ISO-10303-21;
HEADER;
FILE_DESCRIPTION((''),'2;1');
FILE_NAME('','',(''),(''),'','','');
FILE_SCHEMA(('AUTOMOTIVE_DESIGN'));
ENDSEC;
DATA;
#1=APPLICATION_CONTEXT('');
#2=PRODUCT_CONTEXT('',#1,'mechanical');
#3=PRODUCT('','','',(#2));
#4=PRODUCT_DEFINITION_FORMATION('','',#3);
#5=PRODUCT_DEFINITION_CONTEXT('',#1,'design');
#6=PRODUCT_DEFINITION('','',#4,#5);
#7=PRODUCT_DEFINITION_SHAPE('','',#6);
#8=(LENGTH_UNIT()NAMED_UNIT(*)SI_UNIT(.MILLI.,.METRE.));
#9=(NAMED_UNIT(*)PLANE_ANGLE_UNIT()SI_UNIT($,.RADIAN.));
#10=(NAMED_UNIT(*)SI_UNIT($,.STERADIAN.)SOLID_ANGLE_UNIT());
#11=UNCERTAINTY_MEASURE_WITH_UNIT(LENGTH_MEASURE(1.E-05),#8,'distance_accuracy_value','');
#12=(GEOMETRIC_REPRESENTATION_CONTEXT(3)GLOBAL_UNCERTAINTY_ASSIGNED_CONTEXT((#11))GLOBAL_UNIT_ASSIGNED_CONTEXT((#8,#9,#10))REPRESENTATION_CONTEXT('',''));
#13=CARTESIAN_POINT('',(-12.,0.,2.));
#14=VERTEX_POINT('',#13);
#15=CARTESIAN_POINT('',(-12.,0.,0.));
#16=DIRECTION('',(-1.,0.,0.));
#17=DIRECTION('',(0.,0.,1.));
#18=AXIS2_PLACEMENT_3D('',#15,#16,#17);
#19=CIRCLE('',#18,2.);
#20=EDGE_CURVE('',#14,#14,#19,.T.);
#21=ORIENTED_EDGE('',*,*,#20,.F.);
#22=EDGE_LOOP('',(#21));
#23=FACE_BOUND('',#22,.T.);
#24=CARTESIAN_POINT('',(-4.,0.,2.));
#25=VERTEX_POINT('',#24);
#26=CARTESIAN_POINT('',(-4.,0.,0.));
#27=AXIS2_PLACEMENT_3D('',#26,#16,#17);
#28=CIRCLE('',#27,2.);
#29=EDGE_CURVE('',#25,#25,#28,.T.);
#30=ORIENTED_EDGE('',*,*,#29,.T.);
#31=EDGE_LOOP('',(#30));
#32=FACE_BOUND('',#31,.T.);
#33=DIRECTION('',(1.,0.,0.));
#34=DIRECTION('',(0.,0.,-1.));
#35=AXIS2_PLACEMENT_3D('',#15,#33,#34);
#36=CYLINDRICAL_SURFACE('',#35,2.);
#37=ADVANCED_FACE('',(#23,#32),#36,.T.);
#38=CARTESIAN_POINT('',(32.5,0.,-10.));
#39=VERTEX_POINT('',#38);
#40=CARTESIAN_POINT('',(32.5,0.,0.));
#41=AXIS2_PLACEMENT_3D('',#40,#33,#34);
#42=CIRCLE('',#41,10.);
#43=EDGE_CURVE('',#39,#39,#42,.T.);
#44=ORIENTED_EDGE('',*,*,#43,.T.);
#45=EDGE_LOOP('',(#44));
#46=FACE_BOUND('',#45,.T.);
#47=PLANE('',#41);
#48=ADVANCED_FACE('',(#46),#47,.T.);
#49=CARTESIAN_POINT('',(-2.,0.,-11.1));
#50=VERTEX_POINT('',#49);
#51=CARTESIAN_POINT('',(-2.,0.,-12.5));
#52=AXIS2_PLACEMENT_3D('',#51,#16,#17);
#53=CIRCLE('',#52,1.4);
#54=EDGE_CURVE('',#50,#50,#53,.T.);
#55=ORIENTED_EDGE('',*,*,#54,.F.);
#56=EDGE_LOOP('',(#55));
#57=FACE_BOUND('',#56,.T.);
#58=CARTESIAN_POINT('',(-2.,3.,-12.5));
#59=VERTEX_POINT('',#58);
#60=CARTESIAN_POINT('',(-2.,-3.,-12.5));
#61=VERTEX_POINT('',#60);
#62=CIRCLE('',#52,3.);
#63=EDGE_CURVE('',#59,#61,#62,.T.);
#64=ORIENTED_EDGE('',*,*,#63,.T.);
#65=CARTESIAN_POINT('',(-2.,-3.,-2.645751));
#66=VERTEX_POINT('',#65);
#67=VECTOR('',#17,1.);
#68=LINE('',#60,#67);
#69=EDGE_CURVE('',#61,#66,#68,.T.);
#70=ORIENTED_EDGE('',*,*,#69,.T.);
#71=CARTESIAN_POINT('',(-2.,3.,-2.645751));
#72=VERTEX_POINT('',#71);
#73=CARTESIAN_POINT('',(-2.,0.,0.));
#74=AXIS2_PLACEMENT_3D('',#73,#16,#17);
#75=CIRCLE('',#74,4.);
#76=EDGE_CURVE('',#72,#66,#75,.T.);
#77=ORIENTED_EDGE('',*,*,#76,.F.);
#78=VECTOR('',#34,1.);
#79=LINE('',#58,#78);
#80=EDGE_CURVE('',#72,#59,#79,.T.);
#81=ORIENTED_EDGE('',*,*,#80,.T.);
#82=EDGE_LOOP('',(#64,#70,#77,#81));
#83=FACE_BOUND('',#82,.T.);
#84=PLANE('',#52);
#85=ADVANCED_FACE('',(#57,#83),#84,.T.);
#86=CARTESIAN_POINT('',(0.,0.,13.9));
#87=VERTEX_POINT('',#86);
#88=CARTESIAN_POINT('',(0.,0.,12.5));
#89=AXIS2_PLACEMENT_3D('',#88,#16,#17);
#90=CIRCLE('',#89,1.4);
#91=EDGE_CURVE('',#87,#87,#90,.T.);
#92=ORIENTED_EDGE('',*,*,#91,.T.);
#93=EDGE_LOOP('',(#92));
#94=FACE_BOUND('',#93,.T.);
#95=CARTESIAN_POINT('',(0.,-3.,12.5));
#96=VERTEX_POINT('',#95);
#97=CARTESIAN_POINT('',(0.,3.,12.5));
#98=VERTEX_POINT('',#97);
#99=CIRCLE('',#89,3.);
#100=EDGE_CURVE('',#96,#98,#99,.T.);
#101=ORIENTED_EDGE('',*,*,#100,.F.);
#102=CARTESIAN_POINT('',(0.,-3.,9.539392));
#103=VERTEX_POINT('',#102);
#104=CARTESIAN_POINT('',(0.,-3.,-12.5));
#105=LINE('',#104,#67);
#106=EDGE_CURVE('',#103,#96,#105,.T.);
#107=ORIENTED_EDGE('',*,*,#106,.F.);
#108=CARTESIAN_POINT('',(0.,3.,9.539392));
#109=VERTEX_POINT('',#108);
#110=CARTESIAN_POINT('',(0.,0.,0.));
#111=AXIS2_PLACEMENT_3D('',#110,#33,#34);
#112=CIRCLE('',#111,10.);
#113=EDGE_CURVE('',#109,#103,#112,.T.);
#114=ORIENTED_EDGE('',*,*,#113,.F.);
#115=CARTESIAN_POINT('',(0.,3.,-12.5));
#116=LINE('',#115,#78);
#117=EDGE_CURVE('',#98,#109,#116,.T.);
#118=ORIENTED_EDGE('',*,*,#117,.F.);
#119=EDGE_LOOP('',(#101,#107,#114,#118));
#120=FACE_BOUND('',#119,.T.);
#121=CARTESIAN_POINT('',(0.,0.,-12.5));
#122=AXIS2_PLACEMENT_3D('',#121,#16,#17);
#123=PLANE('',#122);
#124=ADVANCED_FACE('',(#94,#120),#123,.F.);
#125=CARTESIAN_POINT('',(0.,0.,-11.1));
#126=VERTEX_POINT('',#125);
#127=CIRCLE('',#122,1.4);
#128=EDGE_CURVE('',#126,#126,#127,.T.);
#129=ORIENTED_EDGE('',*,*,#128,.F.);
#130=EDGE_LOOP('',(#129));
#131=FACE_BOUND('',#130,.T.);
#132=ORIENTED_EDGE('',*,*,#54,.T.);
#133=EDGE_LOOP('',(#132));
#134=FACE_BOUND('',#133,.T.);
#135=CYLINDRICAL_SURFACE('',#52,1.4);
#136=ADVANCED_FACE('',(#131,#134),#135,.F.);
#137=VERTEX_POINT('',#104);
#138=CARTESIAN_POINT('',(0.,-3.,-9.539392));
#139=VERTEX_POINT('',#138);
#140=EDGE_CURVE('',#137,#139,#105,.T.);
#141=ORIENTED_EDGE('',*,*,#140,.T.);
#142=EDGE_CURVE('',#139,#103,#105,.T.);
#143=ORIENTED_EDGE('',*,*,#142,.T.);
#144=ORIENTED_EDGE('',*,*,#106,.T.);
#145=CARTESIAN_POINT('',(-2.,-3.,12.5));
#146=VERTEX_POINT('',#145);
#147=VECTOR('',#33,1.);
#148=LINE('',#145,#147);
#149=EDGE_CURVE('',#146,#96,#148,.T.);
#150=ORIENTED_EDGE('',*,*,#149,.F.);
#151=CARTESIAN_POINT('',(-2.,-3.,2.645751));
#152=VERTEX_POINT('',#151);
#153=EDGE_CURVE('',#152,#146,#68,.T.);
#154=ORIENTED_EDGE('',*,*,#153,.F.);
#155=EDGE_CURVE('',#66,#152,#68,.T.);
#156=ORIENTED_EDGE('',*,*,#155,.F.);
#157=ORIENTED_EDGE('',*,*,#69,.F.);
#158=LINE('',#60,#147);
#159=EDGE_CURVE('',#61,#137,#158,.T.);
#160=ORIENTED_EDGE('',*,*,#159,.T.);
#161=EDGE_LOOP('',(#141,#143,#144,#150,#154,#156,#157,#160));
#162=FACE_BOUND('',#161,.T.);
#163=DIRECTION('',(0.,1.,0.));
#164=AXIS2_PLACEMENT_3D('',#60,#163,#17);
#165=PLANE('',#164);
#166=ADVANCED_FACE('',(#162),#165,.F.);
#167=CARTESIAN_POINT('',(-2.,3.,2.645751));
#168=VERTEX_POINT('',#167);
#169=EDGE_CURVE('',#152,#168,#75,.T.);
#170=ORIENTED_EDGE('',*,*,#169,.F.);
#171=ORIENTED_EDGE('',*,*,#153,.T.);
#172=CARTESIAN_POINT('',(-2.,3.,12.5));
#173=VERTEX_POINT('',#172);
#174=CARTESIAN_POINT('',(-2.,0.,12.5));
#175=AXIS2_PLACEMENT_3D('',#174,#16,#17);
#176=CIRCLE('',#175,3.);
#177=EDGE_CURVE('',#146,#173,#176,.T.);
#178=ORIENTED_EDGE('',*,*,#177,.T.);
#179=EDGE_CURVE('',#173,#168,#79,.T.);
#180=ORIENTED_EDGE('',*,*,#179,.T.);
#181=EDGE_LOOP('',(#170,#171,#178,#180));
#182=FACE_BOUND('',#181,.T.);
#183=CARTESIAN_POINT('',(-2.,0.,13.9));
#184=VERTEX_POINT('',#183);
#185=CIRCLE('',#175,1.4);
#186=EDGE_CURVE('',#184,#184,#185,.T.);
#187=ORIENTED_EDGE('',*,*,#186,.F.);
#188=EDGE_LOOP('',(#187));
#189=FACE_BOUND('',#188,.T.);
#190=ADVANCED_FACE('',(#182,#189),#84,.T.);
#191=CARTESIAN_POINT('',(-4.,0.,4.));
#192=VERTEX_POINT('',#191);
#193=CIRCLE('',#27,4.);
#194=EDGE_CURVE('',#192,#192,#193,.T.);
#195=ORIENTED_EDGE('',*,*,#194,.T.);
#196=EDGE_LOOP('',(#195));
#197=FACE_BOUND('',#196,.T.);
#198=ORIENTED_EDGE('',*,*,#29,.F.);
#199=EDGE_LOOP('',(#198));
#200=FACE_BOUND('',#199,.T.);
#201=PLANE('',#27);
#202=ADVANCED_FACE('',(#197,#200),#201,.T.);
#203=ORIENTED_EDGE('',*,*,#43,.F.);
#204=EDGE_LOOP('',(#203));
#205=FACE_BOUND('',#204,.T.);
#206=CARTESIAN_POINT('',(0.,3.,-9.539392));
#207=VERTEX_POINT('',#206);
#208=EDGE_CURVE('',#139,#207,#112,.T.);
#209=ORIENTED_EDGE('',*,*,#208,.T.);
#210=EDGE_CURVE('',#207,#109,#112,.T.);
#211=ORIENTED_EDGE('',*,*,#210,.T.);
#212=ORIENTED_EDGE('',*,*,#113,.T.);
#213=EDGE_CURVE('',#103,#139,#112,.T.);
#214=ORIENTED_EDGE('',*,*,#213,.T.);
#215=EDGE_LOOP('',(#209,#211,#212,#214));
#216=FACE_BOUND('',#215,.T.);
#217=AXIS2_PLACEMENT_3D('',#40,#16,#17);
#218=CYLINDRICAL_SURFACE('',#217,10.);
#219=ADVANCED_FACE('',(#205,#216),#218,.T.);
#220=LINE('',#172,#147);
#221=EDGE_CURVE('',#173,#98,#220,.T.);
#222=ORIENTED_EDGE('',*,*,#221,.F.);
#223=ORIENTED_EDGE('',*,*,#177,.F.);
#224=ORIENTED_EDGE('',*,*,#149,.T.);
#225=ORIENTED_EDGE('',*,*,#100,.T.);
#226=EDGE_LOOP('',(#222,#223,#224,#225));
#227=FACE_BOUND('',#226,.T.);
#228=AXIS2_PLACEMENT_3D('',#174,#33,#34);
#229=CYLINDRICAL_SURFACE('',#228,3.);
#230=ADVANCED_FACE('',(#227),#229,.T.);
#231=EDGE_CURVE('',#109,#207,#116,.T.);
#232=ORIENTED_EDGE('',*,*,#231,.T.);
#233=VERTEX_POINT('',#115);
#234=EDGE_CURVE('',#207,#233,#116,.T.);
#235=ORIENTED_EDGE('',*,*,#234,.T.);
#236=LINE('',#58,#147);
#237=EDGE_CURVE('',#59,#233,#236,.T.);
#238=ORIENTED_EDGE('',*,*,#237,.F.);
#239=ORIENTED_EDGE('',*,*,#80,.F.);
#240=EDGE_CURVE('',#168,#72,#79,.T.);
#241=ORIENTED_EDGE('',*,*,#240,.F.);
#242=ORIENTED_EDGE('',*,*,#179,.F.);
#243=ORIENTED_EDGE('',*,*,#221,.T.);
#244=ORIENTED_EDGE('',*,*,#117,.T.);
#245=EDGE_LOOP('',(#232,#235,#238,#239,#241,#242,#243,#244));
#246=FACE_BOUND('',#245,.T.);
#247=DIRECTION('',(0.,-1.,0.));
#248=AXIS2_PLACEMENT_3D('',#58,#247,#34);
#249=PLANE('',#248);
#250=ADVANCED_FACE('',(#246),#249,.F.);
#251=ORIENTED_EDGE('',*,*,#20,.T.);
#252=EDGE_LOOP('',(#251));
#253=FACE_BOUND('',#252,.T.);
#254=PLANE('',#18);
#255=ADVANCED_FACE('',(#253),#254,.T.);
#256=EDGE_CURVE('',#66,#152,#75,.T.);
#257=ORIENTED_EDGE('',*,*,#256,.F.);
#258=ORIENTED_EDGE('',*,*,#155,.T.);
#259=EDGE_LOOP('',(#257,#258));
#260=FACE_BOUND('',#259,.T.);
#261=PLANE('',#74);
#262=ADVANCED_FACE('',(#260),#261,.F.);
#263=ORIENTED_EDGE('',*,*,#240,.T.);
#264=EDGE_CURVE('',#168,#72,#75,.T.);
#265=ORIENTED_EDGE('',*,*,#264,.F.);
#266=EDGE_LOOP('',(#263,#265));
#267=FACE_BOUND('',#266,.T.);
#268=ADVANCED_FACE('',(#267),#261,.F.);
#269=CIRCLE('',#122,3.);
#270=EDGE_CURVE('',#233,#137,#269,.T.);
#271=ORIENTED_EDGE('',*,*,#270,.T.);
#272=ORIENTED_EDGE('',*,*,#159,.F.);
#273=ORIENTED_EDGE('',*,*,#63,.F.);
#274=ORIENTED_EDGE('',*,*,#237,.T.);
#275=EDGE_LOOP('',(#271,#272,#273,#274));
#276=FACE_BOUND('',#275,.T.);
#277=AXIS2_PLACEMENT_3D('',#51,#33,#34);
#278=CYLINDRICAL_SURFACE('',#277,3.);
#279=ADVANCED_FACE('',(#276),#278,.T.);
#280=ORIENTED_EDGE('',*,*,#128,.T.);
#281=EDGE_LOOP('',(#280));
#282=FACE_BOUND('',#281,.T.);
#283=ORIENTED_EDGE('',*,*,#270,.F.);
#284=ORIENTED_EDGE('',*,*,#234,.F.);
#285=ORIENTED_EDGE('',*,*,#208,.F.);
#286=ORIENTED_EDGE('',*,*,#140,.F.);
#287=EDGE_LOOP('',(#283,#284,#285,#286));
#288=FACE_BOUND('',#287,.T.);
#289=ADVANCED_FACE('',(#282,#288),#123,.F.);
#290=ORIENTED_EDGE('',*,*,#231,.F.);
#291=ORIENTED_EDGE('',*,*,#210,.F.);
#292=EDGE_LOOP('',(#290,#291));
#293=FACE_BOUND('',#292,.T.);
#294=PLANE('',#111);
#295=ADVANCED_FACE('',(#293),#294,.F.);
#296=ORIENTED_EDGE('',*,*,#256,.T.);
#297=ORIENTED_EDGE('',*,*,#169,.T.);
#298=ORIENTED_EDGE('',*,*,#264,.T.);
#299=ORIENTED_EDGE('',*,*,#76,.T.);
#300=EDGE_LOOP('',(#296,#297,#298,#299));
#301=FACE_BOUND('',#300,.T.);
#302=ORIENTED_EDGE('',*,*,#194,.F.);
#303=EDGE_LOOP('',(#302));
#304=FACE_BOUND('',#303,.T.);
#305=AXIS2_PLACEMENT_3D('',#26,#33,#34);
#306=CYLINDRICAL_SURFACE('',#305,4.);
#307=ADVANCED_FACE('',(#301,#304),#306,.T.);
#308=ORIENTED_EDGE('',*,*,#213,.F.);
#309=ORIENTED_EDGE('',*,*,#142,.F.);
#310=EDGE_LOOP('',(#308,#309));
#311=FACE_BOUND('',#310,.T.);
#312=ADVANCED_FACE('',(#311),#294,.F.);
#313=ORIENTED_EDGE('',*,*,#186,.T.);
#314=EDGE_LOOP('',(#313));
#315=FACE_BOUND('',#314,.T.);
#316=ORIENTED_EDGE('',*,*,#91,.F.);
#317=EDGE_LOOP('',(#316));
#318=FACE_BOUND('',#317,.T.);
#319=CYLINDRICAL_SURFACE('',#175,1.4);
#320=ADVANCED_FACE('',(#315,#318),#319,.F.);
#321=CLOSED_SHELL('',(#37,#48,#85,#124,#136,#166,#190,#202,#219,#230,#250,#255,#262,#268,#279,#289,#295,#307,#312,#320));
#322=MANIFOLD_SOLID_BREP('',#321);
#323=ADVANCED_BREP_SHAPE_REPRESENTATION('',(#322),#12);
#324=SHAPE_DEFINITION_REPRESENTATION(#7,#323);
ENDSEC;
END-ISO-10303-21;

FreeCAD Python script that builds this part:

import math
import FreeCAD as App
import Part
import Sketcher

V = App.Vector

doc = App.newDocument("Part")
body = doc.addObject("PartDesign::Body", "Body")

# Sketch on YZ plane
sketch1 = doc.addObject("Sketcher::SketchObject", "Sketch")
body.addObject(sketch1)
sketch1.AttachmentSupport = (doc.YZ_Plane, [""])
sketch1.MapMode = "FlatFace"
sketch1.addGeometry(Part.Circle(V(0, 0, 0), V(0, 0, 1), 10), False)
sketch1.addConstraint(Sketcher.Constraint("Coincident", 0, 3, -1, 1))
sketch1.addConstraint(Sketcher.Constraint("Diameter", 0, 20.0))
pad1 = doc.addObject("PartDesign::Pad", "Pad")
body.addObject(pad1)
pad1.Profile = sketch1
pad1.Length = 32.5

# Sketch on YZ plane
sketch2 = doc.addObject("Sketcher::SketchObject", "Sketch001")
body.addObject(sketch2)
sketch2.AttachmentSupport = (doc.YZ_Plane, [""])
sketch2.MapMode = "FlatFace"
sketch2.addGeometry(Part.LineSegment(V(3, 12.5, 0), V(3, -12.5, 0)), False)
sketch2.addGeometry(Part.ArcOfCircle(Part.Circle(V(0, -12.5, 0), V(0, 0, 1), 3), math.radians(180), math.radians(360)), False)
sketch2.addGeometry(Part.LineSegment(V(-3, -12.5, 0), V(-3, 12.5, 0)), False)
sketch2.addGeometry(Part.ArcOfCircle(Part.Circle(V(0, 12.5, 0), V(0, 0, 1), 3), math.radians(0), math.radians(180)), False)
sketch2.addConstraint(Sketcher.Constraint("Tangent", 0, 2, 1, 2))
sketch2.addConstraint(Sketcher.Constraint("Tangent", 1, 1, 2, 1))
sketch2.addConstraint(Sketcher.Constraint("Tangent", 2, 2, 3, 2))
sketch2.addConstraint(Sketcher.Constraint("Tangent", 3, 1, 0, 1))
sketch2.addConstraint(Sketcher.Constraint("Vertical", 0))
sketch2.addConstraint(Sketcher.Constraint("Vertical", 2))
sketch2.addConstraint(Sketcher.Constraint("Symmetric", 1, 3, 3, 3, -1, 1))
sketch2.addConstraint(Sketcher.Constraint("Radius", 1, 3.0))
sketch2.addConstraint(Sketcher.Constraint("DistanceY", 0, 2, 0, 1, 25.0))
pad2 = doc.addObject("PartDesign::Pad", "Pad001")
body.addObject(pad2)
pad2.Profile = sketch2
pad2.Length = 2
pad2.Reversed = True

# Sketch on YZ plane
sketch3 = doc.addObject("Sketcher::SketchObject", "Sketch002")
body.addObject(sketch3)
sketch3.AttachmentSupport = (doc.YZ_Plane, [""])
sketch3.MapMode = "FlatFace"
sketch3.AttachmentOffset = App.Placement(V(0, 0, -2), App.Rotation())
sketch3.addGeometry(Part.Circle(V(0, -12.5, 0), V(0, 0, 1), 1.4), False)
sketch3.addGeometry(Part.Circle(V(0, 12.5, 0), V(0, 0, 1), 1.4), False)
sketch3.addConstraint(Sketcher.Constraint("Equal", 0, 1))
sketch3.addConstraint(Sketcher.Constraint("Symmetric", 0, 3, 1, 3, -1, 1))
sketch3.addConstraint(Sketcher.Constraint("PointOnObject", 0, 3, -2))
sketch3.addConstraint(Sketcher.Constraint("Diameter", 0, 2.8))
sketch3.addConstraint(Sketcher.Constraint("DistanceY", 0, 3, 1, 3, 25.0))
doc.recompute()
hole = doc.addObject("PartDesign::Hole", "Hole")
body.addObject(hole)
hole.Profile = sketch3
hole.ThreadType = "None"
hole.Diameter = 2.8
hole.DepthType = "Dimension"
hole.Depth = 70
hole.DrillPoint = "Angled"
hole.DrillPointAngle = 118
hole.Reversed = True

# Sketch on YZ plane
sketch4 = doc.addObject("Sketcher::SketchObject", "Sketch003")
body.addObject(sketch4)
sketch4.AttachmentSupport = (doc.YZ_Plane, [""])
sketch4.MapMode = "FlatFace"
sketch4.AttachmentOffset = App.Placement(V(0, 0, -2), App.Rotation())
sketch4.addGeometry(Part.Circle(V(0, 0, 0), V(0, 0, 1), 4), False)
sketch4.addConstraint(Sketcher.Constraint("Coincident", 0, 3, -1, 1))
sketch4.addConstraint(Sketcher.Constraint("Diameter", 0, 8.0))
pad3 = doc.addObject("PartDesign::Pad", "Pad002")
body.addObject(pad3)
pad3.Profile = sketch4
pad3.Length = 2
pad3.Reversed = True

# Sketch on YZ plane
sketch5 = doc.addObject("Sketcher::SketchObject", "Sketch004")
body.addObject(sketch5)
sketch5.AttachmentSupport = (doc.YZ_Plane, [""])
sketch5.MapMode = "FlatFace"
sketch5.AttachmentOffset = App.Placement(V(0, 0, -4), App.Rotation())
sketch5.addGeometry(Part.Circle(V(0, 0, 0), V(0, 0, 1), 2), False)
sketch5.addConstraint(Sketcher.Constraint("Coincident", 0, 3, -1, 1))
sketch5.addConstraint(Sketcher.Constraint("Diameter", 0, 4.0))
pad4 = doc.addObject("PartDesign::Pad", "Pad003")
body.addObject(pad4)
pad4.Profile = sketch5
pad4.Length = 8
pad4.Reversed = True

doc.recompute()
